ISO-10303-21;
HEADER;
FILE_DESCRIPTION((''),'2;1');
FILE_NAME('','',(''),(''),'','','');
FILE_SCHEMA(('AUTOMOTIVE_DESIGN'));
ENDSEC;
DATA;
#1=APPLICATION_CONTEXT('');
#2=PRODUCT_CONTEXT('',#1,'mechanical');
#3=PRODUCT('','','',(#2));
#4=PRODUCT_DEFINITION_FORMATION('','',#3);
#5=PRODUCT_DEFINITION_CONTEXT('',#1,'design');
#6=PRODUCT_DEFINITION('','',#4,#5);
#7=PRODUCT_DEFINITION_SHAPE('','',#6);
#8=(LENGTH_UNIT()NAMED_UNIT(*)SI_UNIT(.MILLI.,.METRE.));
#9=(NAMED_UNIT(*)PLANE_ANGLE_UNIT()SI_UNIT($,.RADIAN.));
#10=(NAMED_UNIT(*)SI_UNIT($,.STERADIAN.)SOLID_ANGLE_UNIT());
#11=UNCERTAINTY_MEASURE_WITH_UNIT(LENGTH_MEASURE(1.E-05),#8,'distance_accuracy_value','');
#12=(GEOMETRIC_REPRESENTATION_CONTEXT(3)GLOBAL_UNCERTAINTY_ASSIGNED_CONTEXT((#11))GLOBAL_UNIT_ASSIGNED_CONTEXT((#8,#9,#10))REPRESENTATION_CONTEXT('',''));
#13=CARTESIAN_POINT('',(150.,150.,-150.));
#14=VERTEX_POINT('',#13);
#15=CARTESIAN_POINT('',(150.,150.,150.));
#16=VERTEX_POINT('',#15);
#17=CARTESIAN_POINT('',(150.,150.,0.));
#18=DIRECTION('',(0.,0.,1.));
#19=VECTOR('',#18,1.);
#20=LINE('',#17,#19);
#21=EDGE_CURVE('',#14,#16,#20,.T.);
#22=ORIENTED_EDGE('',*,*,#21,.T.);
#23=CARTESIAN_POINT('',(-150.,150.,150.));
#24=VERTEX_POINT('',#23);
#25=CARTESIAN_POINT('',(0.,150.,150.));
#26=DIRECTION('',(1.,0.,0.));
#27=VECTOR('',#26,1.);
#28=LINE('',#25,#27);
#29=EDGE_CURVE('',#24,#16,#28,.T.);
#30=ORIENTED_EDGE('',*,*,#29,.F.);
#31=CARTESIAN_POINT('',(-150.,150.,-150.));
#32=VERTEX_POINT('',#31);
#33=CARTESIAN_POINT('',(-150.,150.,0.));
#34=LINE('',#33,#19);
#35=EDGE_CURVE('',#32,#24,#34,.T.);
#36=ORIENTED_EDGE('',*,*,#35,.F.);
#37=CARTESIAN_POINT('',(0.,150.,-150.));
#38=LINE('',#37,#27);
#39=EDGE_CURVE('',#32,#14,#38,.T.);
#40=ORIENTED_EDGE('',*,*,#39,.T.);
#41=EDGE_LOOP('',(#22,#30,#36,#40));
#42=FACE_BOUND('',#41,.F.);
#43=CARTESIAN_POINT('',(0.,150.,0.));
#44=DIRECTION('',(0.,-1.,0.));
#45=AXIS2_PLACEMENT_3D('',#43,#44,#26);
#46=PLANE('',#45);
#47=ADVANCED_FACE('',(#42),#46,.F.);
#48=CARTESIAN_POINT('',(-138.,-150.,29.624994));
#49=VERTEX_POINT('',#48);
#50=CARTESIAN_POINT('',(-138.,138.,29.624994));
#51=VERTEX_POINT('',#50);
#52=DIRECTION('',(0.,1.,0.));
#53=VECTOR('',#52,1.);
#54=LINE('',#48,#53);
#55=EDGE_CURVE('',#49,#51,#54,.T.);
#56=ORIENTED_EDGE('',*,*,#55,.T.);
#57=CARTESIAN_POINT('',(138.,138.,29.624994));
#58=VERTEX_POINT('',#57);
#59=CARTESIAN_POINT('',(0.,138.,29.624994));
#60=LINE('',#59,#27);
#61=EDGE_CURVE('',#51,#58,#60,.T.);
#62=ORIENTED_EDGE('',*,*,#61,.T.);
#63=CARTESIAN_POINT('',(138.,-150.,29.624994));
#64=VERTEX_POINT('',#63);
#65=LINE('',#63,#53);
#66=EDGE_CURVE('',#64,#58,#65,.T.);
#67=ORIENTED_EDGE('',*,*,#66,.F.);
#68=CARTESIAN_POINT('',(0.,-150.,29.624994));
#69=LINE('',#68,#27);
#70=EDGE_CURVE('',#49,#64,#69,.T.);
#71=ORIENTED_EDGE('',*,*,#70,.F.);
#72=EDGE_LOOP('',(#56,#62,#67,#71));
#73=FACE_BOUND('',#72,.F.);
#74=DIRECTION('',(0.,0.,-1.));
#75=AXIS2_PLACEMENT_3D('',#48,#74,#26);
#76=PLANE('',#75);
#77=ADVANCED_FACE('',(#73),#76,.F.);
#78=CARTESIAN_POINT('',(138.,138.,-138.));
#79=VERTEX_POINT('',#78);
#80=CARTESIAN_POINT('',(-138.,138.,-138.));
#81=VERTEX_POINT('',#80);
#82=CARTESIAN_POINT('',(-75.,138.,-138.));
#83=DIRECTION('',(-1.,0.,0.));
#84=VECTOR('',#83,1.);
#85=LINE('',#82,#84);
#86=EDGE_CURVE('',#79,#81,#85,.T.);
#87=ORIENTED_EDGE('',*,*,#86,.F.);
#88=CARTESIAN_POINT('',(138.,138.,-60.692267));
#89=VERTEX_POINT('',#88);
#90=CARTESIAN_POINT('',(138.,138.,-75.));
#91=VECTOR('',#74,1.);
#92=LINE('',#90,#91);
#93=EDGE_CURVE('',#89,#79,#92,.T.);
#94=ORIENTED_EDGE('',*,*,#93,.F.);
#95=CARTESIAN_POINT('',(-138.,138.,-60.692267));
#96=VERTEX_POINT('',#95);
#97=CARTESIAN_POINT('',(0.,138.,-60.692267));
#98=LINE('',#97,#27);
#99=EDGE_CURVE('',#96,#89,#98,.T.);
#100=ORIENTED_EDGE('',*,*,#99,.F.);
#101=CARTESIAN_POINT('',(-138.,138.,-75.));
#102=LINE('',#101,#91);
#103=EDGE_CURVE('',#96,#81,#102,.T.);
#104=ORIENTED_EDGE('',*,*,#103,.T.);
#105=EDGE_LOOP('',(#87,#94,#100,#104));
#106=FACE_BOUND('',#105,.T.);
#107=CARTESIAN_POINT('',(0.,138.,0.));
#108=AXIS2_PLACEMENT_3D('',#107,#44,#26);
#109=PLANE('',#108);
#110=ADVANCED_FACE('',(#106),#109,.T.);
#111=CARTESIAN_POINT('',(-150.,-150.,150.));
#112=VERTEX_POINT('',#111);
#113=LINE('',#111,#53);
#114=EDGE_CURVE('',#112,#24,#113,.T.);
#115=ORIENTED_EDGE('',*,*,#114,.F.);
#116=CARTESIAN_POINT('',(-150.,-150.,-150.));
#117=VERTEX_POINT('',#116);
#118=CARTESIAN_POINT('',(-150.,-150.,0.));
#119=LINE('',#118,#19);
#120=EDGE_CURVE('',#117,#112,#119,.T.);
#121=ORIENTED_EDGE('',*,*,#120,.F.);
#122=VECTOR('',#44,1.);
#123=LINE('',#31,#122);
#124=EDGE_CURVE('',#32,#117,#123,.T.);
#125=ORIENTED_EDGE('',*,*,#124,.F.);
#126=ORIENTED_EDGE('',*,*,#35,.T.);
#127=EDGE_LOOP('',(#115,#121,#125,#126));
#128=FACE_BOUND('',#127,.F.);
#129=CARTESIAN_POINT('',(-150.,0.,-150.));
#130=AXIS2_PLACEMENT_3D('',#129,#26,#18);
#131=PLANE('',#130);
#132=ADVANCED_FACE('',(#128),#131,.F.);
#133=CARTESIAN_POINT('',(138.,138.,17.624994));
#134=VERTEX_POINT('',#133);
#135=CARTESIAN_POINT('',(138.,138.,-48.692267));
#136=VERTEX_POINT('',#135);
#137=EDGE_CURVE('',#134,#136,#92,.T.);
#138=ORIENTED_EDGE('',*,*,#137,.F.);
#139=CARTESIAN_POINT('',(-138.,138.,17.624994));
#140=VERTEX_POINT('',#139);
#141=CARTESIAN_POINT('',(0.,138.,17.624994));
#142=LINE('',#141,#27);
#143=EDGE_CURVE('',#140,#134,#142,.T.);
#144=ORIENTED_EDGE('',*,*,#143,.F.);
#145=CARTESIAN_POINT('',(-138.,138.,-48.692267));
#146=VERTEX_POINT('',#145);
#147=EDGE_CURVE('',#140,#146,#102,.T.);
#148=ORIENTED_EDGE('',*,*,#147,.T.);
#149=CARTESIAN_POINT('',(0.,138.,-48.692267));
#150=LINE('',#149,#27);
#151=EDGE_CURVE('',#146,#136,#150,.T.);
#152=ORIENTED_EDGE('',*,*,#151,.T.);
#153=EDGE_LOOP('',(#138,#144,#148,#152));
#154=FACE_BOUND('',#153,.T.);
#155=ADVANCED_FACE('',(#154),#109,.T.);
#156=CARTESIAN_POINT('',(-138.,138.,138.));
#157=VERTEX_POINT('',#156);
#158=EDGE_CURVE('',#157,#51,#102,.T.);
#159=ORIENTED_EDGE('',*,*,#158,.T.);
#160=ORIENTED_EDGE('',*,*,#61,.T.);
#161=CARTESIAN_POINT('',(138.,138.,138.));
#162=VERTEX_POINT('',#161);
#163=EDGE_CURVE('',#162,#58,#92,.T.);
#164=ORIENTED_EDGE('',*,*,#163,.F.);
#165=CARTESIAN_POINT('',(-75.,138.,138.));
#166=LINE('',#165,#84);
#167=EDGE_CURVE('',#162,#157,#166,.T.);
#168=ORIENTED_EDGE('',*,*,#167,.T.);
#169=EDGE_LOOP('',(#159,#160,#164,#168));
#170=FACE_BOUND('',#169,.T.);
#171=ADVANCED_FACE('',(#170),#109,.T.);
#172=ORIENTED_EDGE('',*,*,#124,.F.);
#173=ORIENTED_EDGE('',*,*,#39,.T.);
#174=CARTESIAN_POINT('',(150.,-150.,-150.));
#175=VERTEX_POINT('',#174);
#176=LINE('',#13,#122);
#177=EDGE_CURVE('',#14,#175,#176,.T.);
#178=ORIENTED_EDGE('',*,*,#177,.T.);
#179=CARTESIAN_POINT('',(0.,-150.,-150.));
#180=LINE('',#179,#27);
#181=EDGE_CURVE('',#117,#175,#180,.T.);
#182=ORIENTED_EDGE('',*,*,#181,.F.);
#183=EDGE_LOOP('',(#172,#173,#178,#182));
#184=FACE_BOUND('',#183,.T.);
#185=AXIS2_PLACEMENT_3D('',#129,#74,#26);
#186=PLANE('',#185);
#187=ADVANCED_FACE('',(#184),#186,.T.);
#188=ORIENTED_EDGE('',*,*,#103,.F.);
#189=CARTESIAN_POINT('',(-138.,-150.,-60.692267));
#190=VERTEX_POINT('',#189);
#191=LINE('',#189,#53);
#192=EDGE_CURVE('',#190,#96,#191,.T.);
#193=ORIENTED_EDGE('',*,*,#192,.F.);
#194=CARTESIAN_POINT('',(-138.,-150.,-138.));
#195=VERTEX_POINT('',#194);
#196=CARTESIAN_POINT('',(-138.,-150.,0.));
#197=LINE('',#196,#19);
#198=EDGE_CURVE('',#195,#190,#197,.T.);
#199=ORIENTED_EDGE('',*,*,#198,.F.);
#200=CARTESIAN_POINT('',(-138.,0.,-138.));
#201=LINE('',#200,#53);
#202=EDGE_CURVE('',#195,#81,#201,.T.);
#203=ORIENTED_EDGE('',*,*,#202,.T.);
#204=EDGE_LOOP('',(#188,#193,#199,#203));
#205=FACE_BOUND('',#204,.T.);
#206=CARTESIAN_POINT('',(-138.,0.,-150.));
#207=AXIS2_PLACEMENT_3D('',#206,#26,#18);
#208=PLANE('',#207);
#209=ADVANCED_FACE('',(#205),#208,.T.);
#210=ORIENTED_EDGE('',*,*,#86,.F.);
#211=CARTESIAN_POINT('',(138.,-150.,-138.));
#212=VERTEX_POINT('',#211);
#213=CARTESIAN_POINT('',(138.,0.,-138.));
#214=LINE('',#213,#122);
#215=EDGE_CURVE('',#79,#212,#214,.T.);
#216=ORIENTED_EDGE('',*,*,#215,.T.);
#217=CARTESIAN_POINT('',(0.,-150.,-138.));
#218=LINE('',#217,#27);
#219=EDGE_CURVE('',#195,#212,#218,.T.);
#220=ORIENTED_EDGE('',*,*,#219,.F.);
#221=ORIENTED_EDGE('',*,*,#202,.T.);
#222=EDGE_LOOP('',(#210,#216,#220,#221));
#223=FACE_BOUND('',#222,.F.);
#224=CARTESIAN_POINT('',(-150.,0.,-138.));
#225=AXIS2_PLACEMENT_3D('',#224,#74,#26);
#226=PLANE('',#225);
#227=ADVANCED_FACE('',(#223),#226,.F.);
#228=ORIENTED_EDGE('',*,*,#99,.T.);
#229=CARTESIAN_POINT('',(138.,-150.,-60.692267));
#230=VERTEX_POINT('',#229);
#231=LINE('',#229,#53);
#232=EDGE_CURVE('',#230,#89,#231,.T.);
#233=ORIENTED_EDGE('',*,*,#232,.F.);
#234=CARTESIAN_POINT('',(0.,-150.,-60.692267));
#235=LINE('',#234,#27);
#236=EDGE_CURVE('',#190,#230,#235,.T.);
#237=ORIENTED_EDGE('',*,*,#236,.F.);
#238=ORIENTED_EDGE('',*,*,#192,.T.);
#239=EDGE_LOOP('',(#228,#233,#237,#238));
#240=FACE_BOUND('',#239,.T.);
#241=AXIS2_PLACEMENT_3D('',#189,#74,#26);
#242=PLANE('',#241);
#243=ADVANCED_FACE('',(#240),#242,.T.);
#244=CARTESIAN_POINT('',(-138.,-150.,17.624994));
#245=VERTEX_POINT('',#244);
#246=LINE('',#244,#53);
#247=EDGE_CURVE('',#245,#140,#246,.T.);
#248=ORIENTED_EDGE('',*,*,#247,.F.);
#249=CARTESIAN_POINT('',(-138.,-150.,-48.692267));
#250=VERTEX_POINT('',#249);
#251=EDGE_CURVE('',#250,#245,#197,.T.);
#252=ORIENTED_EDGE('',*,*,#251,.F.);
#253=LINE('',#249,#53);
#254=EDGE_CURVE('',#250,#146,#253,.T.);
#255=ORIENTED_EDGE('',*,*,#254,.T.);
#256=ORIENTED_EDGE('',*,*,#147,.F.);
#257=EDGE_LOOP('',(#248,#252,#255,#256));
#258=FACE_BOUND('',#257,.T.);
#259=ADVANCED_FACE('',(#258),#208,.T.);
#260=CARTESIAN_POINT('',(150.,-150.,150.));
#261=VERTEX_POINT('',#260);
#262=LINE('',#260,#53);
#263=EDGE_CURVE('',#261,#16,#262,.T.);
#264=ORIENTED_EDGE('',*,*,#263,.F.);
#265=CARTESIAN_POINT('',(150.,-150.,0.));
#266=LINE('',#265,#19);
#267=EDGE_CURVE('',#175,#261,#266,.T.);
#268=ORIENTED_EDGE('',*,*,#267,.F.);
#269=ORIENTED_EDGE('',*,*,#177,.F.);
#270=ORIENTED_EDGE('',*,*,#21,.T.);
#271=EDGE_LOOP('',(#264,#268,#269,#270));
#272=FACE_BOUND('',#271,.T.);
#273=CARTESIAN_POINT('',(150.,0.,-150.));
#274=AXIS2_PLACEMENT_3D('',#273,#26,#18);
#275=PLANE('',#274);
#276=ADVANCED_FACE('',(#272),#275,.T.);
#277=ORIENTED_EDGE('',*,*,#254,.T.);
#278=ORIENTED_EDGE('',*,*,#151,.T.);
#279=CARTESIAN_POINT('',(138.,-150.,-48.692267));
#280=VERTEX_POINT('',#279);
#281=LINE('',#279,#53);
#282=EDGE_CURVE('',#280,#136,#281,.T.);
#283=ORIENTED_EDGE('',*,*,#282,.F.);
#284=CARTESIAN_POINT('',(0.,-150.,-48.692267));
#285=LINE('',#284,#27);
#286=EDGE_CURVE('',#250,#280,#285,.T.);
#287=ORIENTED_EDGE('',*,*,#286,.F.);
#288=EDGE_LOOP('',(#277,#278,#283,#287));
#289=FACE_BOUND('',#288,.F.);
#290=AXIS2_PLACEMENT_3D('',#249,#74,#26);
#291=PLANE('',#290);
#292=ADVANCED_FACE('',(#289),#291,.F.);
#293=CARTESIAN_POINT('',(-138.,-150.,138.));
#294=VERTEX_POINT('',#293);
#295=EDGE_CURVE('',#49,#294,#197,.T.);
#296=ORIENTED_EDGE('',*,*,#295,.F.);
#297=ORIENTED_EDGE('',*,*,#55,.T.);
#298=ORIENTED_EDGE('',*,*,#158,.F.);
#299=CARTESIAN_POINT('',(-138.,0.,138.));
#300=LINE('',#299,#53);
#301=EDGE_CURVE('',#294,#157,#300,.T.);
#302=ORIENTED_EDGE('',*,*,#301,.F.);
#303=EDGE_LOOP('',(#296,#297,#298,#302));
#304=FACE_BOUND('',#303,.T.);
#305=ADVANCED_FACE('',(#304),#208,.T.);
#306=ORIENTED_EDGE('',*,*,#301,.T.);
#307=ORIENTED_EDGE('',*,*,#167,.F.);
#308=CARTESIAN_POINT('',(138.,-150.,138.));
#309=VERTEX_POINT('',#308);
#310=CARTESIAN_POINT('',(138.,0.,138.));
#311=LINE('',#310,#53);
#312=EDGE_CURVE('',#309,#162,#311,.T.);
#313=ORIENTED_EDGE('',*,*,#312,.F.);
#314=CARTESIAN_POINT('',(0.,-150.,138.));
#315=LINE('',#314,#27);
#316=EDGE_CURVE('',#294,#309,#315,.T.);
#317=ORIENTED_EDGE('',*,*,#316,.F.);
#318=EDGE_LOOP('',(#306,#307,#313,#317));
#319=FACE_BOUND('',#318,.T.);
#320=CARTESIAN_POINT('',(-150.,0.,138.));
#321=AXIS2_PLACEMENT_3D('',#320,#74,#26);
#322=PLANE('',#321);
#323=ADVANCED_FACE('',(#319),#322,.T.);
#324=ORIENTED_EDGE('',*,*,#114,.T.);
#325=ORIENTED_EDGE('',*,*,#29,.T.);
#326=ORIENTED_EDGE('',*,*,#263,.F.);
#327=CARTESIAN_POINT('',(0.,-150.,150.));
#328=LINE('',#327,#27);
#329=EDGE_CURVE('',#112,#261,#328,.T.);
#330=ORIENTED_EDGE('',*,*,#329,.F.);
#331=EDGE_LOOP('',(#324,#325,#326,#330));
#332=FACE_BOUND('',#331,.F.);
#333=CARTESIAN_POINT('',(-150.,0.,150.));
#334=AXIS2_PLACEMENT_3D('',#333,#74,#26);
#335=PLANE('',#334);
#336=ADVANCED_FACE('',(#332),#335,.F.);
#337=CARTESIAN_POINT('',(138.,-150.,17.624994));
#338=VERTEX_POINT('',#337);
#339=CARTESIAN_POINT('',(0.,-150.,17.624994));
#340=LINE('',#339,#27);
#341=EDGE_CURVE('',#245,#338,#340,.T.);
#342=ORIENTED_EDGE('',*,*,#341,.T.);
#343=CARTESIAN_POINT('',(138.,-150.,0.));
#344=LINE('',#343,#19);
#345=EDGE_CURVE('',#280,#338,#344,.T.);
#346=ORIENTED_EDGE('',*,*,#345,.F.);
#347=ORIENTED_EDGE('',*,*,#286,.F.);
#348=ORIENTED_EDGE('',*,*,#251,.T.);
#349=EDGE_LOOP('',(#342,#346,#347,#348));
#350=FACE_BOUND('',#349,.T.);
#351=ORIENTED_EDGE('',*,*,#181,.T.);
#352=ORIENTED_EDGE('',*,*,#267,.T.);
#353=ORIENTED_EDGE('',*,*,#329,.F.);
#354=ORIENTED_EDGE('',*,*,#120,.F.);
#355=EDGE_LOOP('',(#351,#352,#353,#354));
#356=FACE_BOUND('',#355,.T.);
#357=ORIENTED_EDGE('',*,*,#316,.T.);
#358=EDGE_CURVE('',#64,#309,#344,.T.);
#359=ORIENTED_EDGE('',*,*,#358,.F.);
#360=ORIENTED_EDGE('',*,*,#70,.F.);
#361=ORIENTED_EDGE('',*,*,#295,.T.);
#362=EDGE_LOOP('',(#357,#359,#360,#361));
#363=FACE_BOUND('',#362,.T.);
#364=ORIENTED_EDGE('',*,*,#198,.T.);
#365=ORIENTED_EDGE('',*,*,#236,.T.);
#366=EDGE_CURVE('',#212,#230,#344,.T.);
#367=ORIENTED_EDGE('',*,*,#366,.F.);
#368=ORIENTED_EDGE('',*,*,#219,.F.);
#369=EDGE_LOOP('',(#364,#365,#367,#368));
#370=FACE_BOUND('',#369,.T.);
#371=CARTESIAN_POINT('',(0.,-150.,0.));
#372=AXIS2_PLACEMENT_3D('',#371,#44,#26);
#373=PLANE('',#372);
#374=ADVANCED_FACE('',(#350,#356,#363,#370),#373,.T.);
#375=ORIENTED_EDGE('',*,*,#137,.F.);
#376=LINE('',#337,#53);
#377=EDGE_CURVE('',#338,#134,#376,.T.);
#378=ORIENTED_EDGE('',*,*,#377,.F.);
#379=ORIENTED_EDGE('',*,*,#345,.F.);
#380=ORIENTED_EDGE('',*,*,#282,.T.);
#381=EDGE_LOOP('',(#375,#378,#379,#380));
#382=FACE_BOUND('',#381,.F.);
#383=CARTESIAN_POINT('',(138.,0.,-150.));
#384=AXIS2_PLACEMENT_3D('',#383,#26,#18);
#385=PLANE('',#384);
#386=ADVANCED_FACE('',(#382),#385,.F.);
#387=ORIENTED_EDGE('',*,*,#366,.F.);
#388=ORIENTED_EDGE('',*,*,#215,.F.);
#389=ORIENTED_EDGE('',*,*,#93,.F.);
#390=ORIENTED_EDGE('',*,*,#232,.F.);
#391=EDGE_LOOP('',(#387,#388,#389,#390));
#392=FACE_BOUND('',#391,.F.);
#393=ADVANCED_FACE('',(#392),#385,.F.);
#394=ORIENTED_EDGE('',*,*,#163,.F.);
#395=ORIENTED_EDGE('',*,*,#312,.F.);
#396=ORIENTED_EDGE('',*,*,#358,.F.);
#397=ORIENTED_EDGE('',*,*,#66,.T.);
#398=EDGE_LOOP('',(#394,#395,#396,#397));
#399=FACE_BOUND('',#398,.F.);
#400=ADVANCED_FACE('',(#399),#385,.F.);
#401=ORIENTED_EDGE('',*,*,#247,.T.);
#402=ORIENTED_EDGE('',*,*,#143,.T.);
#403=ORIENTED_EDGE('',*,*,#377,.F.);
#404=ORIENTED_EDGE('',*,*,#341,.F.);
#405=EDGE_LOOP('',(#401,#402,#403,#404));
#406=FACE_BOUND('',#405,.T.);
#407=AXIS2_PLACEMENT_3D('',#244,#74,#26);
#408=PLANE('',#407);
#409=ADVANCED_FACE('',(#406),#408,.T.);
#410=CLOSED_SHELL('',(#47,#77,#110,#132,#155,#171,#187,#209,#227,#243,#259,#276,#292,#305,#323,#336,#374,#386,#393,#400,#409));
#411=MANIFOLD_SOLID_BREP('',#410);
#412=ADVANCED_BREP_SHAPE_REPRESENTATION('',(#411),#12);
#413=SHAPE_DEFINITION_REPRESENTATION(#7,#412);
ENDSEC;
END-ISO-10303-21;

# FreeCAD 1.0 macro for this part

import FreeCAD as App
import Part
import Sketcher
from FreeCAD import Vector
Q = App.Units.Quantity


def faces_at(feature, points):
    """Names of the faces that lie closest to the given points."""
    faces = feature.Shape.Faces
    near = lambda p: min(range(len(faces)), key=lambda i: faces[i].distToShape(Part.Vertex(*p))[0])
    return sorted({f"Face{near(p) + 1}" for p in points})


def add_polygon(sketch, points):
    """Adds a closed chain of lines whose ends are joined by coincident constraints."""
    first, n = sketch.GeometryCount, len(points)
    for a, b in zip(points, points[1:] + points[:1]):
        sketch.addGeometry(Part.LineSegment(App.Vector(*a, 0), App.Vector(*b, 0)), False)
    for i in range(n):
        sketch.addConstraint(Sketcher.Constraint("Coincident", first + i, 2, first + (i + 1) % n, 1))

doc = App.newDocument("Part")
body = doc.addObject("PartDesign::Body", "Body")

sketch1 = body.newObject("Sketcher::SketchObject", "Sketch")
sketch1.AttachmentSupport = (doc.getObject("XZ_Plane"), [""])
sketch1.MapMode = "FlatFace"
add_polygon(sketch1, [(-150, 150), (-150, -150), (150, -150), (150, 150)])
sketch1.addConstraint(Sketcher.Constraint("Vertical", 0))
sketch1.addConstraint(Sketcher.Constraint("Horizontal", 1))
sketch1.addConstraint(Sketcher.Constraint("Vertical", 2))
sketch1.addConstraint(Sketcher.Constraint("Horizontal", 3))
sketch1.addConstraint(Sketcher.Constraint("Symmetric", 0, 2, 2, 2, -1, 1))
sketch1.addConstraint(Sketcher.Constraint("Equal", 3, 0))
sketch1.addConstraint(Sketcher.Constraint("DistanceX", 1, 1, 1, 2, Q("300 mm")))
pad1 = body.newObject("PartDesign::Pad", "Pad")
pad1.Profile = sketch1
pad1.Length = 300
pad1.Midplane = True
doc.recompute()

thickness = body.newObject("PartDesign::Thickness", "Thickness")
thickness.Base = (pad1, faces_at(pad1, [(0, -150, 0)]))
thickness.Value = 12
thickness.Reversed = True
thickness.Join = "Arc"

sketch2 = body.newObject("Sketcher::SketchObject", "Sketch001")
sketch2.AttachmentSupport = (doc.getObject("XZ_Plane"), [""])
sketch2.MapMode = "FlatFace"
sketch2.AttachmentOffset = App.Placement(Vector(0, 0, 150), App.Rotation())
add_polygon(sketch2, [(-138, 29.624994), (-138, 17.624994), (138, 17.624994), (138, 29.624994)])
sketch2.addConstraint(Sketcher.Constraint("Vertical", 0))
sketch2.addConstraint(Sketcher.Constraint("Horizontal", 1))
sketch2.addConstraint(Sketcher.Constraint("Vertical", 2))
sketch2.addConstraint(Sketcher.Constraint("Horizontal", 3))
sketch2.addConstraint(Sketcher.Constraint("DistanceX", 1, 1, 1, 2, Q("276 mm")))
sketch2.addConstraint(Sketcher.Constraint("DistanceY", 0, 2, 0, 1, Q("12 mm")))
sketch2.addConstraint(Sketcher.Constraint("DistanceX", 0, 2, -1, 1, Q("138 mm")))
sketch2.addConstraint(Sketcher.Constraint("DistanceY", -1, 1, 0, 2, Q("17.624994 mm")))
pad2 = body.newObject("PartDesign::Pad", "Pad001")
pad2.Profile = sketch2
pad2.Length = 288
pad2.Reversed = True

sketch3 = body.newObject("Sketcher::SketchObject", "Sketch002")
sketch3.AttachmentSupport = (doc.getObject("XZ_Plane"), [""])
sketch3.MapMode = "FlatFace"
sketch3.AttachmentOffset = App.Placement(Vector(0, 0, 150), App.Rotation())
add_polygon(sketch3, [(-138, -48.692267), (-138, -60.692267), (138, -60.692267), (138, -48.692267)])
sketch3.addConstraint(Sketcher.Constraint("Vertical", 0))
sketch3.addConstraint(Sketcher.Constraint("Horizontal", 1))
sketch3.addConstraint(Sketcher.Constraint("Vertical", 2))
sketch3.addConstraint(Sketcher.Constraint("Horizontal", 3))
sketch3.addConstraint(Sketcher.Constraint("DistanceX", 1, 1, 1, 2, Q("276 mm")))
sketch3.addConstraint(Sketcher.Constraint("DistanceY", 0, 2, 0, 1, Q("12 mm")))
sketch3.addConstraint(Sketcher.Constraint("DistanceX", 0, 2, -1, 1, Q("138 mm")))
sketch3.addConstraint(Sketcher.Constraint("DistanceY", 0, 2, -1, 1, Q("60.692267 mm")))
pad3 = body.newObject("PartDesign::Pad", "Pad002")
pad3.Profile = sketch3
pad3.Length = 288
pad3.Reversed = True

doc.recompute()
